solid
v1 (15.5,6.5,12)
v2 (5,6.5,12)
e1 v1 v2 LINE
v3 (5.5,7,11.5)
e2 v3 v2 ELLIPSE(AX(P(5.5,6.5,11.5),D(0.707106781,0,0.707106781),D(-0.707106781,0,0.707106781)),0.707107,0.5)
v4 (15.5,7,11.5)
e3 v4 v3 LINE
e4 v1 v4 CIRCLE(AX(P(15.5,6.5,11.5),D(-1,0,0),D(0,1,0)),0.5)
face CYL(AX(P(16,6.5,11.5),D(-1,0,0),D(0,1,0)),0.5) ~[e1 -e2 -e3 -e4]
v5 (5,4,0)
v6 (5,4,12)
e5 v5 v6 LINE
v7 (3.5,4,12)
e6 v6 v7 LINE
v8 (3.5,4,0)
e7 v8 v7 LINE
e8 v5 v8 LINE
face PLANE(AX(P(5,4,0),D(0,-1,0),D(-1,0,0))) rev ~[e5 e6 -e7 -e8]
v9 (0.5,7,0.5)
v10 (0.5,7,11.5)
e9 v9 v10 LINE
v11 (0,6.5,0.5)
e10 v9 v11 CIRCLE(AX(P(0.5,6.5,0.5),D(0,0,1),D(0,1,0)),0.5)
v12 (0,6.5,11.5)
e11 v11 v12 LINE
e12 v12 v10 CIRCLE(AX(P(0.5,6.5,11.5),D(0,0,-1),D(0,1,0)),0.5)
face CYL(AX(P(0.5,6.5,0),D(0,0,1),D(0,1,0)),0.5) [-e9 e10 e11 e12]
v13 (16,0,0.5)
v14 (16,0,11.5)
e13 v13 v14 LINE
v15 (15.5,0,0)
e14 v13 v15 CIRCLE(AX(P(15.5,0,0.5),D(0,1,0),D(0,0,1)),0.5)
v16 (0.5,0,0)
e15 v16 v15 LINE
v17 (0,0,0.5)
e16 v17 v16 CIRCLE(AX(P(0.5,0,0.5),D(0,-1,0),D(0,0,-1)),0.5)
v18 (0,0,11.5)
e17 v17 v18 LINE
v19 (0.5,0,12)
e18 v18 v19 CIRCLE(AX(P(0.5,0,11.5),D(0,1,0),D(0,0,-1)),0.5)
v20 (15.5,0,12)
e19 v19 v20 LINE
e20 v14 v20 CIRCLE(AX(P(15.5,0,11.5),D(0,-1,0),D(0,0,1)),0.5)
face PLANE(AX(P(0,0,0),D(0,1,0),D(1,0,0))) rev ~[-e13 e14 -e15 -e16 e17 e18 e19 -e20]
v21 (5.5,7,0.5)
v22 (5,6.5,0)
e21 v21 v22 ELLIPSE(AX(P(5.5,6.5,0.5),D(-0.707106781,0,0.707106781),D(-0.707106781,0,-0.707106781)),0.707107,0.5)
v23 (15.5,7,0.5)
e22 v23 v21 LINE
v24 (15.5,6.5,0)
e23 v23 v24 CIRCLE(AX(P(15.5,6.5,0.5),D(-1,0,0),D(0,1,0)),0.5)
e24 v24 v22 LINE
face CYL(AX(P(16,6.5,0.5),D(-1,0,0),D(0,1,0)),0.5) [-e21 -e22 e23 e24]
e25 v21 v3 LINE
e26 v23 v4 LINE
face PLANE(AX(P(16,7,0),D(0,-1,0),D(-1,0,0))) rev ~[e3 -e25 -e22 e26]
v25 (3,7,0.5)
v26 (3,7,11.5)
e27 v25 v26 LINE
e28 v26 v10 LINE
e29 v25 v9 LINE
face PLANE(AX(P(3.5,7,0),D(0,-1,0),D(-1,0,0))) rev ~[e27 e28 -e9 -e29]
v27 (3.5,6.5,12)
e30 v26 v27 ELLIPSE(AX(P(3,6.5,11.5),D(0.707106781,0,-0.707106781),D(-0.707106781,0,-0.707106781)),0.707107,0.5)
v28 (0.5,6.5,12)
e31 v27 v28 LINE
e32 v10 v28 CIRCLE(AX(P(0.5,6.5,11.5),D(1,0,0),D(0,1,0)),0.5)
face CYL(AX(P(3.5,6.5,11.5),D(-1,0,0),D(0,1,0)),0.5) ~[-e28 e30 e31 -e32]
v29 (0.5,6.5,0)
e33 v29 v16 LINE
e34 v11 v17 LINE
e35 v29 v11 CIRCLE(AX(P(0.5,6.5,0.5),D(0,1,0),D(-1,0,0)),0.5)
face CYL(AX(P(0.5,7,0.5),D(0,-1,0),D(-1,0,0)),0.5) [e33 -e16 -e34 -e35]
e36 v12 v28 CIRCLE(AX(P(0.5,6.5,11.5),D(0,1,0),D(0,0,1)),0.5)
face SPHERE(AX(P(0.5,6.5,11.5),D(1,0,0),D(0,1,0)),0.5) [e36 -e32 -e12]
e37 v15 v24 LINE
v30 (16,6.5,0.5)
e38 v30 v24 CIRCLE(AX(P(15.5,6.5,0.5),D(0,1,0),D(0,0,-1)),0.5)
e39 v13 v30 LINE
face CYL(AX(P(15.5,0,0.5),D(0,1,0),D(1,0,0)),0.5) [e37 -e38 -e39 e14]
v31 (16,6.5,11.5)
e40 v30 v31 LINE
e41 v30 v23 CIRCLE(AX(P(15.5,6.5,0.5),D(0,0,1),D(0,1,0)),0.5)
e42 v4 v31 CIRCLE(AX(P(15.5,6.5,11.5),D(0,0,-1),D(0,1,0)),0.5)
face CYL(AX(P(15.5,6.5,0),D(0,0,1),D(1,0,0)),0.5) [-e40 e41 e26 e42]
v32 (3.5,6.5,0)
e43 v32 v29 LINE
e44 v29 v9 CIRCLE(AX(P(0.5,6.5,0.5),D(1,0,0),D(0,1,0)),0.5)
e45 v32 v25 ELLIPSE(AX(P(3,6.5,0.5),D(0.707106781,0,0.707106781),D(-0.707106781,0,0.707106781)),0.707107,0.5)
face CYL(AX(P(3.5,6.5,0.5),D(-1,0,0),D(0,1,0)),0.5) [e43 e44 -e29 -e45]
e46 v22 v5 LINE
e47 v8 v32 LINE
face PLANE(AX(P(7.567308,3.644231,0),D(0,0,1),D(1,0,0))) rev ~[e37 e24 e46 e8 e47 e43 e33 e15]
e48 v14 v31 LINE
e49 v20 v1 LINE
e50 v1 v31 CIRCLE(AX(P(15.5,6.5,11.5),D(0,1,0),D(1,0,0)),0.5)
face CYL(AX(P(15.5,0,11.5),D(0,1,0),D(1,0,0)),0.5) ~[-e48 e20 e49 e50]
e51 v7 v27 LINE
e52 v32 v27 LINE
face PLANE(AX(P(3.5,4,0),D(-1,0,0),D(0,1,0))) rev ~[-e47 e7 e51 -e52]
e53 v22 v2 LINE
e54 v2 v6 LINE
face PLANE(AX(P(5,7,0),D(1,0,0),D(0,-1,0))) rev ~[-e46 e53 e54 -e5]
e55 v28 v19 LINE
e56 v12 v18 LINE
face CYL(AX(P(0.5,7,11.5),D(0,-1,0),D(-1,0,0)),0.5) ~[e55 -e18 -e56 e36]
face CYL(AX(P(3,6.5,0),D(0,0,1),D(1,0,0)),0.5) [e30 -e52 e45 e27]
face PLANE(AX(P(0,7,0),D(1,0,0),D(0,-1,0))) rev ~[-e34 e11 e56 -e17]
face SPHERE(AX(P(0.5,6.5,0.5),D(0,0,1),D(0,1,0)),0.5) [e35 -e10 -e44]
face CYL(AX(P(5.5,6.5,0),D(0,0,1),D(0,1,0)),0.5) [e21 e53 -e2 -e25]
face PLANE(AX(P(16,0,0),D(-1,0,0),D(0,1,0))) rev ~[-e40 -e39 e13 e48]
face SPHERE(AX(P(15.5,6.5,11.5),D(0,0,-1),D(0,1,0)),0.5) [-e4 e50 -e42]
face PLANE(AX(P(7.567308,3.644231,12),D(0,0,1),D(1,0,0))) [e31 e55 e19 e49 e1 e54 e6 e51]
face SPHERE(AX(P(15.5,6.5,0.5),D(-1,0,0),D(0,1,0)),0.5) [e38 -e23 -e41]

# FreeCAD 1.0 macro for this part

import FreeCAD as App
import Part
import Sketcher
from FreeCAD import Vector


def edges_at(feature, points):
    """Names of the edges that pass closest to the given points."""
    edges = feature.Shape.Edges
    near = lambda p: min(range(len(edges)), key=lambda i: edges[i].distToShape(Part.Vertex(*p))[0])
    return sorted({f"Edge{near(p) + 1}" for p in points})

doc = App.newDocument("Part")
params = doc.addObject("Spreadsheet::Sheet", "Params")
for row, (alias, value) in enumerate([
    ("sketch1_width", "16 mm"),
    ("sketch1_width2", "11 mm"),
    ("sketch1_height", "7 mm"),
    ("sketch1_height2", "3 mm"),
    ("sketch1_width3", "1.5 mm"),
    ("pad1_length", "12 mm"),
    ("fillet_radius", "0.5 mm"),
], start=1):
    params.set(f"A{row}", alias)
    params.set(f"B{row}", "=" + value)
    params.setAlias(f"B{row}", alias)

body = doc.addObject("PartDesign::Body", "Body")

sketch1 = body.newObject("Sketcher::SketchObject", "Sketch")
sketch1.AttachmentSupport = (doc.getObject("XY_Plane"), [""])
sketch1.MapMode = "FlatFace"
sketch1.addGeometry([
    Part.LineSegment(Vector(0, 0, 0), Vector(16, 0, 0)),
    Part.LineSegment(Vector(16, 0, 0), Vector(16, 7, 0)),
    Part.LineSegment(Vector(16, 7, 0), Vector(5, 7, 0)),
    Part.LineSegment(Vector(5, 7, 0), Vector(5, 4, 0)),
    Part.LineSegment(Vector(5, 4, 0), Vector(3.5, 4, 0)),
    Part.LineSegment(Vector(3.5, 4, 0), Vector(3.5, 7, 0)),
    Part.LineSegment(Vector(3.5, 7, 0), Vector(0, 7, 0)),
    Part.LineSegment(Vector(0, 7, 0), Vector(0, 0, 0)),
], False)
sketch1.addConstraint([
    Sketcher.Constraint("Coincident", 0, 2, 1, 1),
    Sketcher.Constraint("Coincident", 1, 2, 2, 1),
    Sketcher.Constraint("Coincident", 2, 2, 3, 1),
    Sketcher.Constraint("Coincident", 3, 2, 4, 1),
    Sketcher.Constraint("Coincident", 4, 2, 5, 1),
    Sketcher.Constraint("Coincident", 5, 2, 6, 1),
    Sketcher.Constraint("Coincident", 6, 2, 7, 1),
    Sketcher.Constraint("Coincident", 7, 2, 0, 1),
    Sketcher.Constraint("Horizontal", 0),
    Sketcher.Constraint("Vertical", 1),
    Sketcher.Constraint("Horizontal", 2),
    Sketcher.Constraint("Vertical", 3),
    Sketcher.Constraint("Horizontal", 4),
    Sketcher.Constraint("Vertical", 5),
    Sketcher.Constraint("Horizontal", 6),
    Sketcher.Constraint("Vertical", 7),
    Sketcher.Constraint("Coincident", 7, 2, -1, 1),
    Sketcher.Constraint("Horizontal", 2, 2, 5, 2),
    Sketcher.Constraint("DistanceX", 0, 1, 0, 2, 16.0),
    Sketcher.Constraint("DistanceX", 2, 2, 2, 1, 11.0),
    Sketcher.Constraint("DistanceY", 1, 1, 1, 2, 7.0),
    Sketcher.Constraint("DistanceY", 3, 2, 3, 1, 3.0),
    Sketcher.Constraint("DistanceX", 4, 2, 4, 1, 1.5),
])
sketch1.setExpression("Constraints[18]", "Params.sketch1_width")
sketch1.setExpression("Constraints[19]", "Params.sketch1_width2")
sketch1.setExpression("Constraints[20]", "Params.sketch1_height")
sketch1.setExpression("Constraints[21]", "Params.sketch1_height2")
sketch1.setExpression("Constraints[22]", "Params.sketch1_width3")
pad1 = body.newObject("PartDesign::Pad", "Pad")
pad1.Profile = sketch1
pad1.setExpression("Length", "Params.pad1_length")
doc.recompute()

fillet = body.newObject("PartDesign::Fillet", "Fillet")
fillet.Base = (pad1, edges_at(pad1, [
    (10.5, 7, 0),
    (16, 7, 6),
    (5, 7, 6),
    (10.5, 7, 12),
    (1.75, 7, 12),
    (0, 7, 6),
    (3.5, 7, 6),
    (1.75, 7, 0),
    (0, 3.5, 0),
    (16, 3.5, 0),
    (16, 3.5, 12),
    (0, 3.5, 12),
]))
fillet.setExpression("Radius", "Params.fillet_radius")

doc.recompute()
